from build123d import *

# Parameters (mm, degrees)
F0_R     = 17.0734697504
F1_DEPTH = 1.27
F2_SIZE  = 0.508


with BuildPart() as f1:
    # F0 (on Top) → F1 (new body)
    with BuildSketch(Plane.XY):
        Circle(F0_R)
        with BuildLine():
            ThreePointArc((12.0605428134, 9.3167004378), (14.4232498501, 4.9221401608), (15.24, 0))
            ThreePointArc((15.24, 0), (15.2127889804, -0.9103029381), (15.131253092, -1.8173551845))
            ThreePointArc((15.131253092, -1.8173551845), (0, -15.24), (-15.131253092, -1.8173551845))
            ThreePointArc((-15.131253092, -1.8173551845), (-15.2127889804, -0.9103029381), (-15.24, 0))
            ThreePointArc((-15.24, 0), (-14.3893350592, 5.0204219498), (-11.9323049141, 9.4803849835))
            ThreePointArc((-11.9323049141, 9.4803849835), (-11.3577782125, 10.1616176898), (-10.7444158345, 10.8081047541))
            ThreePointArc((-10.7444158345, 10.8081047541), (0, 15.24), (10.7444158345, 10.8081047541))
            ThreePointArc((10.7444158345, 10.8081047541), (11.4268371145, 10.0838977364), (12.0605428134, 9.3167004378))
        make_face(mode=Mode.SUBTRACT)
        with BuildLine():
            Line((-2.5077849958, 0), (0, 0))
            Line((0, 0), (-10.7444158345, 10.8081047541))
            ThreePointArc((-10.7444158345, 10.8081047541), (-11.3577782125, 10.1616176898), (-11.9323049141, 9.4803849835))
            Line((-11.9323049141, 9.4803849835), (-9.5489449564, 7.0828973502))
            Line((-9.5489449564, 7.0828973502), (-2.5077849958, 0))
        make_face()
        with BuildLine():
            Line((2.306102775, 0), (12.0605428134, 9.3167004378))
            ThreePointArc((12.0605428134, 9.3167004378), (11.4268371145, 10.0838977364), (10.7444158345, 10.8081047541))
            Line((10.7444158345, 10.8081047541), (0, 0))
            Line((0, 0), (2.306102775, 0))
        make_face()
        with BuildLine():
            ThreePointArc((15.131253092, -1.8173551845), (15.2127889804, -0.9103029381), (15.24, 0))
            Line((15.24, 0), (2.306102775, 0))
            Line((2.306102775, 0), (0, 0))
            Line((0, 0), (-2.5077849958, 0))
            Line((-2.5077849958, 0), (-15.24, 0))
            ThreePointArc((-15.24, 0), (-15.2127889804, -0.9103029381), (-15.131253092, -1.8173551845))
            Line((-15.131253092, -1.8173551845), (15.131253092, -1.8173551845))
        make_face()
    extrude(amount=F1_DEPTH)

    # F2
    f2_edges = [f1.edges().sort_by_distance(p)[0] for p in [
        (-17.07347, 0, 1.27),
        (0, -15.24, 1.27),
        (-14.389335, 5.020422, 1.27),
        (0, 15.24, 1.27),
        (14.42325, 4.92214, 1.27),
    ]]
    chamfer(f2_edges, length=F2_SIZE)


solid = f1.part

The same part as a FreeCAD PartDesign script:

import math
import FreeCAD as App
import Part
import Sketcher
from FreeCAD import Vector
Q = App.Units.Quantity


def edges_at(feature, points):
    """Names of the edges that pass closest to the given points."""
    edges = feature.Shape.Edges
    near = lambda p: min(range(len(edges)), key=lambda i: edges[i].distToShape(Part.Vertex(*p))[0])
    return sorted({f"Edge{near(p) + 1}" for p in points})

doc = App.newDocument("Part")
body = doc.addObject("PartDesign::Body", "Body")

# Sketch on XY plane
sketch1 = body.newObject("Sketcher::SketchObject", "Sketch")
sketch1.AttachmentSupport = (doc.getObject("XY_Plane"), [""])
sketch1.MapMode = "FlatFace"
sketch1.addGeometry([
    Part.Circle(Vector(0, 0, 0), Vector(0, 0, 1), 17.07347),  # 0
    Part.LineSegment(Vector(-9.548945, 7.082897, 0), Vector(-2.507785, 0, 0)),  # 1
    Part.LineSegment(Vector(-2.507785, 0, 0), Vector(-15.24, 0, 0)),  # 2
    Part.ArcOfCircle(Part.Circle(Vector(0, 0, 0), Vector(0, 0, 1), 15.24), math.radians(141.532362), math.radians(180)),  # 3
    Part.LineSegment(Vector(-11.932305, 9.480385, 0), Vector(-9.548945, 7.082897, 0)),  # 4
    Part.ArcOfCircle(Part.Circle(Vector(0, 0, 0), Vector(0, 0, 1), 15.24), math.radians(-173.151236), math.radians(-6.848764)),  # 5
    Part.LineSegment(Vector(-15.131253, -1.817355, 0), Vector(15.131253, -1.817355, 0)),  # 6
    Part.ArcOfCircle(Part.Circle(Vector(0, 0, 0), Vector(0, 0, 1), 15.24), math.radians(0), math.radians(37.685881)),  # 7
    Part.LineSegment(Vector(15.24, 0, 0), Vector(2.306103, 0, 0)),  # 8
    Part.LineSegment(Vector(2.306103, 0, 0), Vector(12.060543, 9.3167, 0)),  # 9
    Part.LineSegment(Vector(10.744416, 10.808105, 0), Vector(0, 0, 0)),  # 10
    Part.LineSegment(Vector(0, 0, 0), Vector(-10.744416, 10.808105, 0)),  # 11
    Part.ArcOfCircle(Part.Circle(Vector(0, 0, 0), Vector(0, 0, 1), 15.24), math.radians(45.169312), math.radians(134.830688)),  # 12
], False)
sketch1.addConstraint([
    Sketcher.Constraint("Coincident", 1, 2, 2, 1),
    Sketcher.Constraint("Coincident", 2, 2, 3, 2),
    Sketcher.Constraint("Coincident", 3, 1, 4, 1),
    Sketcher.Constraint("Coincident", 4, 2, 1, 1),
    Sketcher.Constraint("Coincident", 5, 1, 6, 1),
    Sketcher.Constraint("Coincident", 6, 2, 5, 2),
    Sketcher.Constraint("Coincident", 7, 1, 8, 1),
    Sketcher.Constraint("Coincident", 8, 2, 9, 1),
    Sketcher.Constraint("Coincident", 9, 2, 7, 2),
    Sketcher.Constraint("Coincident", 10, 2, 11, 1),
    Sketcher.Constraint("Coincident", 11, 2, 12, 2),
    Sketcher.Constraint("Coincident", 12, 1, 10, 1),
    Sketcher.Constraint("Horizontal", 2),
    Sketcher.Constraint("Horizontal", 6),
    Sketcher.Constraint("Horizontal", 8),
    Sketcher.Constraint("Coincident", 0, 3, -1, 1),
    Sketcher.Constraint("Coincident", 3, 3, -1, 1),
    Sketcher.Constraint("Coincident", 5, 3, -1, 1),
    Sketcher.Constraint("Coincident", 7, 3, -1, 1),
    Sketcher.Constraint("Coincident", 12, 3, -1, 1),
    Sketcher.Constraint("Coincident", 10, 2, -1, 1),
    Sketcher.Constraint("Equal", 3, 5),
    Sketcher.Constraint("Equal", 5, 7),
    Sketcher.Constraint("Equal", 7, 12),
    Sketcher.Constraint("PointOnObject", 1, 2, -1),
    Sketcher.Constraint("PointOnObject", 7, 1, -1),
    Sketcher.Constraint("Parallel", 1, 4),
    Sketcher.Constraint("Parallel", 4, 11),
    Sketcher.Constraint("Horizontal", 11, 2, 12, 1),
    Sketcher.Constraint("Radius", 3, Q("0.6 in")),
    Sketcher.Constraint("Diameter", 0, 34.14694),
    Sketcher.Constraint("DistanceY", -1, 1, 9, 2, 9.3167),
    Sketcher.Constraint("Distance", 1, 9.98726),
    Sketcher.Constraint("DistanceX", 2, 2, 2, 1, 12.732215),
    Sketcher.Constraint("DistanceX", 6, 1, 6, 2, 30.262506),
    Sketcher.Constraint("DistanceX", 8, 2, 8, 1, 12.933897),
    Sketcher.Constraint("DistanceX", 3, 1, 1, 2, 9.42452),
])
pad1 = body.newObject("PartDesign::Pad", "Pad")
pad1.Profile = sketch1
pad1.Length = Q("0.05 in")
doc.recompute()

chamfer = body.newObject("PartDesign::Chamfer", "Chamfer")
chamfer.Base = (pad1, edges_at(pad1, [
    (-17.073, 0, 1.27),
    (0, -15.24, 1.27),
    (-14.389, 5.02, 1.27),
    (0, 15.24, 1.27),
    (14.423, 4.922, 1.27),
]))
chamfer.Size = Q("0.02 in")

doc.recompute()
